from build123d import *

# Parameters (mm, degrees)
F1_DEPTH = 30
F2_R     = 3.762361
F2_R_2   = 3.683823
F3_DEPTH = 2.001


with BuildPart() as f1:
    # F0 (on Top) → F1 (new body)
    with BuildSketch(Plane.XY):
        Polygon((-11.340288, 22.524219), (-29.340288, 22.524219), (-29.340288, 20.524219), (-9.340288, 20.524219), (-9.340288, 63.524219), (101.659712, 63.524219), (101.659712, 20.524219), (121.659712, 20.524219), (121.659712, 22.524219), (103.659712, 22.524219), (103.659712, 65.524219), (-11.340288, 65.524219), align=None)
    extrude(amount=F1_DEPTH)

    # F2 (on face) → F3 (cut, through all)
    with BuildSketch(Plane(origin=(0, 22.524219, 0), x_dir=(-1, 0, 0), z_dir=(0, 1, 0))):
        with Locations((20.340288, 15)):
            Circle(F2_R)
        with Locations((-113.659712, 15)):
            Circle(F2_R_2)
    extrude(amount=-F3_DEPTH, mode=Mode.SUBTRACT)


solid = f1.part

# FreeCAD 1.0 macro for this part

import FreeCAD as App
import Part
import Sketcher

V = App.Vector

doc = App.newDocument("Part")
params = doc.addObject("Spreadsheet::Sheet", "Params")
for row, (alias, value) in enumerate([
    ("sketch1_width", "18 mm"),
    ("sketch1_width2", "20 mm"),
    ("sketch1_width3", "111 mm"),
    ("sketch1_height", "2 mm"),
    ("sketch1_height2", "43 mm"),
    ("pad1_length", "30 mm"),
], start=1):
    params.set(f"A{row}", alias)
    params.set(f"B{row}", "=" + value)
    params.setAlias(f"B{row}", alias)

body = doc.addObject("PartDesign::Body", "Body")

# Sketch on XY plane
sketch1 = doc.addObject("Sketcher::SketchObject", "Sketch")
body.addObject(sketch1)
sketch1.AttachmentSupport = (doc.XY_Plane, [""])
sketch1.MapMode = "FlatFace"
sketch1.addGeometry([
    Part.LineSegment(V(-11.340288, 22.524219, 0), V(-29.340288, 22.524219, 0)),  # 0
    Part.LineSegment(V(-29.340288, 22.524219, 0), V(-29.340288, 20.524219, 0)),  # 1
    Part.LineSegment(V(-29.340288, 20.524219, 0), V(-9.340288, 20.524219, 0)),  # 2
    Part.LineSegment(V(-9.340288, 20.524219, 0), V(-9.340288, 63.524219, 0)),  # 3
    Part.LineSegment(V(-9.340288, 63.524219, 0), V(101.659712, 63.524219, 0)),  # 4
    Part.LineSegment(V(101.659712, 63.524219, 0), V(101.659712, 20.524219, 0)),  # 5
    Part.LineSegment(V(101.659712, 20.524219, 0), V(121.659712, 20.524219, 0)),  # 6
    Part.LineSegment(V(121.659712, 20.524219, 0), V(121.659712, 22.524219, 0)),  # 7
    Part.LineSegment(V(121.659712, 22.524219, 0), V(103.659712, 22.524219, 0)),  # 8
    Part.LineSegment(V(103.659712, 22.524219, 0), V(103.659712, 65.524219, 0)),  # 9
    Part.LineSegment(V(103.659712, 65.524219, 0), V(-11.340288, 65.524219, 0)),  # 10
    Part.LineSegment(V(-11.340288, 65.524219, 0), V(-11.340288, 22.524219, 0)),  # 11
], False)
sketch1.addConstraint([
    Sketcher.Constraint("Coincident", 0, 2, 1, 1),
    Sketcher.Constraint("Coincident", 1, 2, 2, 1),
    Sketcher.Constraint("Coincident", 2, 2, 3, 1),
    Sketcher.Constraint("Coincident", 3, 2, 4, 1),
    Sketcher.Constraint("Coincident", 4, 2, 5, 1),
    Sketcher.Constraint("Coincident", 5, 2, 6, 1),
    Sketcher.Constraint("Coincident", 6, 2, 7, 1),
    Sketcher.Constraint("Coincident", 7, 2, 8, 1),
    Sketcher.Constraint("Coincident", 8, 2, 9, 1),
    Sketcher.Constraint("Coincident", 9, 2, 10, 1),
    Sketcher.Constraint("Coincident", 10, 2, 11, 1),
    Sketcher.Constraint("Coincident", 11, 2, 0, 1),
    Sketcher.Constraint("Horizontal", 0),
    Sketcher.Constraint("Vertical", 1),
    Sketcher.Constraint("Horizontal", 2),
    Sketcher.Constraint("Vertical", 3),
    Sketcher.Constraint("Horizontal", 4),
    Sketcher.Constraint("Vertical", 5),
    Sketcher.Constraint("Horizontal", 6),
    Sketcher.Constraint("Vertical", 7),
    Sketcher.Constraint("Horizontal", 8),
    Sketcher.Constraint("Vertical", 9),
    Sketcher.Constraint("Horizontal", 10),
    Sketcher.Constraint("Vertical", 11),
    Sketcher.Constraint("Horizontal", 2, 2, 5, 2),
    Sketcher.Constraint("Horizontal", 0, 2, 7, 2),
    Sketcher.Constraint("Equal", 2, 6),
    Sketcher.Constraint("Equal", 0, 8),
    Sketcher.Constraint("Equal", 5, 9),
    Sketcher.Constraint("DistanceX", 0, 2, 0, 1, 18.0),
    Sketcher.Constraint("DistanceX", 2, 1, 2, 2, 20.0),
    Sketcher.Constraint("DistanceX", 4, 1, 4, 2, 111.0),
    Sketcher.Constraint("DistanceY", 1, 2, 1, 1, 2.0),
    Sketcher.Constraint("DistanceY", 3, 1, 3, 2, 43.0),
    Sketcher.Constraint("DistanceX", 0, 2, -1, 1, 29.340288),
    Sketcher.Constraint("DistanceY", -1, 1, 0, 2, 22.524219),
])
sketch1.setExpression("Constraints[29]", "Params.sketch1_width")
sketch1.setExpression("Constraints[30]", "Params.sketch1_width2")
sketch1.setExpression("Constraints[31]", "Params.sketch1_width3")
sketch1.setExpression("Constraints[32]", "Params.sketch1_height")
sketch1.setExpression("Constraints[33]", "Params.sketch1_height2")
pad1 = doc.addObject("PartDesign::Pad", "Pad")
body.addObject(pad1)
pad1.Profile = sketch1
pad1.setExpression("Length", "Params.pad1_length")

# Sketch on XZ plane
sketch2 = doc.addObject("Sketcher::SketchObject", "Sketch001")
body.addObject(sketch2)
sketch2.AttachmentSupport = (doc.XZ_Plane, [""])
sketch2.MapMode = "FlatFace"
sketch2.AttachmentOffset = App.Placement(V(0, 0, -22.524219), App.Rotation())
sketch2.addGeometry([
    Part.Circle(V(-20.340288, 15, 0), V(0, 0, 1), 3.762361),
    Part.Circle(V(113.659712, 15, 0), V(0, 0, 1), 3.683823),
], False)
sketch2.addConstraint([
    Sketcher.Constraint("Horizontal", 0, 3, 1, 3),
    Sketcher.Constraint("DistanceY", -1, 1, 0, 3, 15.0),
    Sketcher.Constraint("DistanceX", 0, 3, 1, 3, 134.0),
    Sketcher.Constraint("Diameter", 0, 7.524722),
    Sketcher.Constraint("Diameter", 1, 7.367646),
    Sketcher.Constraint("DistanceX", 0, 3, -1, 1, 20.340288),
])
pocket1 = doc.addObject("PartDesign::Pocket", "Pocket")
body.addObject(pocket1)
pocket1.Profile = sketch2
pocket1.Type = "ThroughAll"
pocket1.Reversed = True

doc.recompute()
